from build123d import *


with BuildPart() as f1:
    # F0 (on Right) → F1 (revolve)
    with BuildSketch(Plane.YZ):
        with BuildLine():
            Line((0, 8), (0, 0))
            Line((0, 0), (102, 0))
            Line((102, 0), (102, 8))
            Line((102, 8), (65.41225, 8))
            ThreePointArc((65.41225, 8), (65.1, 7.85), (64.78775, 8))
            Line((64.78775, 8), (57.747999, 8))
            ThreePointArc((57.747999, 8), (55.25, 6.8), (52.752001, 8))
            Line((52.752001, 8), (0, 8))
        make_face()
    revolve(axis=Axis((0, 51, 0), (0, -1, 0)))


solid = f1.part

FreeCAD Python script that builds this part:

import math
import FreeCAD as App
import Part
import Sketcher
from FreeCAD import Vector
Q = App.Units.Quantity

doc = App.newDocument("Part")
params = doc.addObject("Spreadsheet::Sheet", "Params")
for row, (alias, value) in enumerate([
    ("sketch1_radius", "0.4 mm"),
    ("sketch1_radius2", "3.2 mm"),
    ("sketch1_width", "102 mm"),
    ("sketch1_height", "8 mm"),
    ("revolution_angle", "360 deg"),
], start=1):
    params.set(f"A{row}", alias)
    params.set(f"B{row}", "=" + value)
    params.setAlias(f"B{row}", alias)

body = doc.addObject("PartDesign::Body", "Body")

# Sketch on YZ plane
sketch1 = body.newObject("Sketcher::SketchObject", "Sketch")
sketch1.AttachmentSupport = (doc.getObject("YZ_Plane"), [""])
sketch1.MapMode = "FlatFace"
sketch1.addGeometry([
    Part.LineSegment(Vector(0, 8, 0), Vector(0, 0, 0)),  # 0
    Part.LineSegment(Vector(0, 0, 0), Vector(102, 0, 0)),  # 1
    Part.LineSegment(Vector(102, 0, 0), Vector(102, 8, 0)),  # 2
    Part.LineSegment(Vector(102, 8, 0), Vector(65.41, 8, 0)),  # 3
    Part.ArcOfCircle(Part.Circle(Vector(65.1, 8.25, 0), Vector(0, 0, 1), 0.4), math.radians(-141), math.radians(-39)),  # 4
    Part.LineSegment(Vector(64.79, 8, 0), Vector(57.75, 8, 0)),  # 5
    Part.ArcOfCircle(Part.Circle(Vector(55.25, 10, 0), Vector(0, 0, 1), 3.2), math.radians(-141), math.radians(-39)),  # 6
    Part.LineSegment(Vector(52.75, 8, 0), Vector(0, 8, 0)),  # 7
], False)
sketch1.addConstraint([
    Sketcher.Constraint("Coincident", 0, 2, 1, 1),
    Sketcher.Constraint("Coincident", 1, 2, 2, 1),
    Sketcher.Constraint("Coincident", 2, 2, 3, 1),
    Sketcher.Constraint("Coincident", 3, 2, 4, 2),
    Sketcher.Constraint("Coincident", 4, 1, 5, 1),
    Sketcher.Constraint("Coincident", 5, 2, 6, 2),
    Sketcher.Constraint("Coincident", 6, 1, 7, 1),
    Sketcher.Constraint("Coincident", 7, 2, 0, 1),
    Sketcher.Constraint("Vertical", 0),
    Sketcher.Constraint("Horizontal", 1),
    Sketcher.Constraint("Vertical", 2),
    Sketcher.Constraint("Horizontal", 3),
    Sketcher.Constraint("Horizontal", 5),
    Sketcher.Constraint("Horizontal", 7),
    Sketcher.Constraint("Coincident", 0, 2, -1, 1),
    Sketcher.Constraint("Horizontal", 3, 2, 4, 1),
    Sketcher.Constraint("Horizontal", 5, 2, 6, 1),
    Sketcher.Constraint("Radius", 4, Q("0.4 mm")),
    Sketcher.Constraint("Radius", 6, Q("3.2 mm")),
    Sketcher.Constraint("DistanceX", 1, 1, 1, 2, Q("102 mm")),
    Sketcher.Constraint("DistanceY", 0, 2, 0, 1, Q("8 mm")),
    Sketcher.Constraint("DistanceY", -1, 1, 6, 3, Q("10 mm")),
    Sketcher.Constraint("DistanceX", -1, 1, 4, 3, Q("65.1 mm")),
    Sketcher.Constraint("DistanceX", 7, 2, 7, 1, Q("52.752001 mm")),
    Sketcher.Constraint("DistanceY", -1, 1, 4, 3, Q("8.25 mm")),
])
sketch1.setExpression("Constraints[17]", "Params.sketch1_radius")
sketch1.setExpression("Constraints[18]", "Params.sketch1_radius2")
sketch1.setExpression("Constraints[19]", "Params.sketch1_width")
sketch1.setExpression("Constraints[20]", "Params.sketch1_height")
revolution = body.newObject("PartDesign::Revolution", "Revolution")
revolution.Profile = sketch1
revolution.ReferenceAxis = (sketch1, ["H_Axis"])
revolution.setExpression("Angle", "Params.revolution_angle")

doc.recompute()
